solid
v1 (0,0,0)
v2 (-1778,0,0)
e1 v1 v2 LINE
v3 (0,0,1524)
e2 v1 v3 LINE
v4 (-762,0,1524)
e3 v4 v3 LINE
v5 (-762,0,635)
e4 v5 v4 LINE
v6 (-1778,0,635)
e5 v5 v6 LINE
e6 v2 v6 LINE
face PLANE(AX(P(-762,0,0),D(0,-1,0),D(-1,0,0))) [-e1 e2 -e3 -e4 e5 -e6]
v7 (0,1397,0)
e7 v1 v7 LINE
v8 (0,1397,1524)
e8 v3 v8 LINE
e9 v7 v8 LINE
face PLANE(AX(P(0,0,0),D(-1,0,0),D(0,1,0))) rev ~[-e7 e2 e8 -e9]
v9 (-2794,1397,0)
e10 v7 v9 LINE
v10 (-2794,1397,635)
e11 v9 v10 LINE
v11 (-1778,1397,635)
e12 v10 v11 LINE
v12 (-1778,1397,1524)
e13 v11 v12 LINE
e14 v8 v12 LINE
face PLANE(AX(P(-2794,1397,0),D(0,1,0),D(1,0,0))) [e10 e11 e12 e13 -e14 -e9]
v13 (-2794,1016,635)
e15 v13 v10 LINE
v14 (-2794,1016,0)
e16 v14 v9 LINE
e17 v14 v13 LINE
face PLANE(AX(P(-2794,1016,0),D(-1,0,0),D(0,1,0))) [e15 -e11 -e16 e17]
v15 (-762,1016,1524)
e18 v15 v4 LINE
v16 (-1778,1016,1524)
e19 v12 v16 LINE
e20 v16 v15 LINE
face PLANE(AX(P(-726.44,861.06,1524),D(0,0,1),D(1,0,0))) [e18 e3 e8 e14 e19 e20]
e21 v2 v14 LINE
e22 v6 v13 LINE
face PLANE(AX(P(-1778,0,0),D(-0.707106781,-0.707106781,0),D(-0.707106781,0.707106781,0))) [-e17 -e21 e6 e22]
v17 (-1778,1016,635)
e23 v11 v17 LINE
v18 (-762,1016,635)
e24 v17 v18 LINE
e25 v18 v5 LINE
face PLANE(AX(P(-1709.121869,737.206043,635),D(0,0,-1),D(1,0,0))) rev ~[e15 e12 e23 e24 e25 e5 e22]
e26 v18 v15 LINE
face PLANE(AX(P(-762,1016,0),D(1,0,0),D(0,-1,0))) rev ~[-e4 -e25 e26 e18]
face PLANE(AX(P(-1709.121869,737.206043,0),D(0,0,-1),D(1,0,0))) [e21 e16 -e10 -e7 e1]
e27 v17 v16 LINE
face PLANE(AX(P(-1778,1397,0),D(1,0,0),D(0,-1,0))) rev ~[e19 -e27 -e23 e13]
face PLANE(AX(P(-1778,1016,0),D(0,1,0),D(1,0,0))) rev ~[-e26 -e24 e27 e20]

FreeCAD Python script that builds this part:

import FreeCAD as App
import Part
import Sketcher
from FreeCAD import Vector
Q = App.Units.Quantity

doc = App.newDocument("Part")
body = doc.addObject("PartDesign::Body", "Body")

sketch1 = body.newObject("Sketcher::SketchObject", "Sketch")
sketch1.AttachmentSupport = (doc.getObject("XY_Plane"), [""])
sketch1.MapMode = "FlatFace"
sketch1.addGeometry(Part.LineSegment(Vector(-762, 0, 0), Vector(0, 0, 0)), False)
sketch1.addGeometry(Part.LineSegment(Vector(0, 0, 0), Vector(0, 1397, 0)), False)
sketch1.addGeometry(Part.LineSegment(Vector(0, 1397, 0), Vector(-1778, 1397, 0)), False)
sketch1.addGeometry(Part.LineSegment(Vector(-1778, 1397, 0), Vector(-1778, 1016, 0)), False)
sketch1.addGeometry(Part.LineSegment(Vector(-1778, 1016, 0), Vector(-762, 1016, 0)), False)
sketch1.addGeometry(Part.LineSegment(Vector(-762, 1016, 0), Vector(-762, 0, 0)), False)
sketch1.addConstraint(Sketcher.Constraint("Coincident", 0, 2, 1, 1))
sketch1.addConstraint(Sketcher.Constraint("Coincident", 1, 2, 2, 1))
sketch1.addConstraint(Sketcher.Constraint("Coincident", 2, 2, 3, 1))
sketch1.addConstraint(Sketcher.Constraint("Coincident", 3, 2, 4, 1))
sketch1.addConstraint(Sketcher.Constraint("Coincident", 4, 2, 5, 1))
sketch1.addConstraint(Sketcher.Constraint("Coincident", 5, 2, 0, 1))
sketch1.addConstraint(Sketcher.Constraint("Horizontal", 0))
sketch1.addConstraint(Sketcher.Constraint("Vertical", 1))
sketch1.addConstraint(Sketcher.Constraint("Horizontal", 2))
sketch1.addConstraint(Sketcher.Constraint("Vertical", 3))
sketch1.addConstraint(Sketcher.Constraint("Horizontal", 4))
sketch1.addConstraint(Sketcher.Constraint("Vertical", 5))
sketch1.addConstraint(Sketcher.Constraint("Coincident", 0, 2, -1, 1))
sketch1.addConstraint(Sketcher.Constraint("Equal", 4, 5))
sketch1.addConstraint(Sketcher.Constraint("DistanceX", 0, 1, 0, 2, Q("30 in")))
sketch1.addConstraint(Sketcher.Constraint("DistanceX", 2, 2, 2, 1, Q("70 in")))
sketch1.addConstraint(Sketcher.Constraint("DistanceY", 1, 1, 1, 2, Q("55 in")))
pad1 = body.newObject("PartDesign::Pad", "Pad")
pad1.Profile = sketch1
pad1.Length = Q("60 in")

sketch2 = body.newObject("Sketcher::SketchObject", "Sketch001")
sketch2.AttachmentSupport = (doc.getObject("XY_Plane"), [""])
sketch2.MapMode = "FlatFace"
sketch2.addGeometry(Part.LineSegment(Vector(-2794, 1397, 0), Vector(-1778, 1397, 0)), False)
sketch2.addGeometry(Part.LineSegment(Vector(-1778, 1397, 0), Vector(-1778, 1016, 0)), False)
sketch2.addGeometry(Part.LineSegment(Vector(-1778, 1016, 0), Vector(-762, 1016, 0)), False)
sketch2.addGeometry(Part.LineSegment(Vector(-762, 1016, 0), Vector(-762, 0, 0)), False)
sketch2.addGeometry(Part.LineSegment(Vector(-762, 0, 0), Vector(-1778, 0, 0)), False)
sketch2.addGeometry(Part.LineSegment(Vector(-1778, 0, 0), Vector(-2794, 1016, 0)), False)
sketch2.addGeometry(Part.LineSegment(Vector(-2794, 1016, 0), Vector(-2794, 1397, 0)), False)
sketch2.addConstraint(Sketcher.Constraint("Coincident", 0, 2, 1, 1))
sketch2.addConstraint(Sketcher.Constraint("Coincident", 1, 2, 2, 1))
sketch2.addConstraint(Sketcher.Constraint("Coincident", 2, 2, 3, 1))
sketch2.addConstraint(Sketcher.Constraint("Coincident", 3, 2, 4, 1))
sketch2.addConstraint(Sketcher.Constraint("Coincident", 4, 2, 5, 1))
sketch2.addConstraint(Sketcher.Constraint("Coincident", 5, 2, 6, 1))
sketch2.addConstraint(Sketcher.Constraint("Coincident", 6, 2, 0, 1))
sketch2.addConstraint(Sketcher.Constraint("Horizontal", 0))
sketch2.addConstraint(Sketcher.Constraint("Vertical", 1))
sketch2.addConstraint(Sketcher.Constraint("Horizontal", 2))
sketch2.addConstraint(Sketcher.Constraint("Vertical", 3))
sketch2.addConstraint(Sketcher.Constraint("Horizontal", 4))
sketch2.addConstraint(Sketcher.Constraint("Vertical", 6))
sketch2.addConstraint(Sketcher.Constraint("PointOnObject", 3, 2, -1))
sketch2.addConstraint(Sketcher.Constraint("Horizontal", 2, 2, 5, 2))
sketch2.addConstraint(Sketcher.Constraint("Vertical", 1, 2, 4, 2))
sketch2.addConstraint(Sketcher.Constraint("Equal", 0, 2))
sketch2.addConstraint(Sketcher.Constraint("Equal", 4, 3))
sketch2.addConstraint(Sketcher.Constraint("DistanceX", 0, 1, 0, 2, Q("40 in")))
sketch2.addConstraint(Sketcher.Constraint("DistanceY", 1, 2, 1, 1, Q("15 in")))
sketch2.addConstraint(Sketcher.Constraint("DistanceX", 0, 2, -1, 1, Q("70 in")))
pad2 = body.newObject("PartDesign::Pad", "Pad001")
pad2.Profile = sketch2
pad2.Length = Q("25 in")

doc.recompute()
